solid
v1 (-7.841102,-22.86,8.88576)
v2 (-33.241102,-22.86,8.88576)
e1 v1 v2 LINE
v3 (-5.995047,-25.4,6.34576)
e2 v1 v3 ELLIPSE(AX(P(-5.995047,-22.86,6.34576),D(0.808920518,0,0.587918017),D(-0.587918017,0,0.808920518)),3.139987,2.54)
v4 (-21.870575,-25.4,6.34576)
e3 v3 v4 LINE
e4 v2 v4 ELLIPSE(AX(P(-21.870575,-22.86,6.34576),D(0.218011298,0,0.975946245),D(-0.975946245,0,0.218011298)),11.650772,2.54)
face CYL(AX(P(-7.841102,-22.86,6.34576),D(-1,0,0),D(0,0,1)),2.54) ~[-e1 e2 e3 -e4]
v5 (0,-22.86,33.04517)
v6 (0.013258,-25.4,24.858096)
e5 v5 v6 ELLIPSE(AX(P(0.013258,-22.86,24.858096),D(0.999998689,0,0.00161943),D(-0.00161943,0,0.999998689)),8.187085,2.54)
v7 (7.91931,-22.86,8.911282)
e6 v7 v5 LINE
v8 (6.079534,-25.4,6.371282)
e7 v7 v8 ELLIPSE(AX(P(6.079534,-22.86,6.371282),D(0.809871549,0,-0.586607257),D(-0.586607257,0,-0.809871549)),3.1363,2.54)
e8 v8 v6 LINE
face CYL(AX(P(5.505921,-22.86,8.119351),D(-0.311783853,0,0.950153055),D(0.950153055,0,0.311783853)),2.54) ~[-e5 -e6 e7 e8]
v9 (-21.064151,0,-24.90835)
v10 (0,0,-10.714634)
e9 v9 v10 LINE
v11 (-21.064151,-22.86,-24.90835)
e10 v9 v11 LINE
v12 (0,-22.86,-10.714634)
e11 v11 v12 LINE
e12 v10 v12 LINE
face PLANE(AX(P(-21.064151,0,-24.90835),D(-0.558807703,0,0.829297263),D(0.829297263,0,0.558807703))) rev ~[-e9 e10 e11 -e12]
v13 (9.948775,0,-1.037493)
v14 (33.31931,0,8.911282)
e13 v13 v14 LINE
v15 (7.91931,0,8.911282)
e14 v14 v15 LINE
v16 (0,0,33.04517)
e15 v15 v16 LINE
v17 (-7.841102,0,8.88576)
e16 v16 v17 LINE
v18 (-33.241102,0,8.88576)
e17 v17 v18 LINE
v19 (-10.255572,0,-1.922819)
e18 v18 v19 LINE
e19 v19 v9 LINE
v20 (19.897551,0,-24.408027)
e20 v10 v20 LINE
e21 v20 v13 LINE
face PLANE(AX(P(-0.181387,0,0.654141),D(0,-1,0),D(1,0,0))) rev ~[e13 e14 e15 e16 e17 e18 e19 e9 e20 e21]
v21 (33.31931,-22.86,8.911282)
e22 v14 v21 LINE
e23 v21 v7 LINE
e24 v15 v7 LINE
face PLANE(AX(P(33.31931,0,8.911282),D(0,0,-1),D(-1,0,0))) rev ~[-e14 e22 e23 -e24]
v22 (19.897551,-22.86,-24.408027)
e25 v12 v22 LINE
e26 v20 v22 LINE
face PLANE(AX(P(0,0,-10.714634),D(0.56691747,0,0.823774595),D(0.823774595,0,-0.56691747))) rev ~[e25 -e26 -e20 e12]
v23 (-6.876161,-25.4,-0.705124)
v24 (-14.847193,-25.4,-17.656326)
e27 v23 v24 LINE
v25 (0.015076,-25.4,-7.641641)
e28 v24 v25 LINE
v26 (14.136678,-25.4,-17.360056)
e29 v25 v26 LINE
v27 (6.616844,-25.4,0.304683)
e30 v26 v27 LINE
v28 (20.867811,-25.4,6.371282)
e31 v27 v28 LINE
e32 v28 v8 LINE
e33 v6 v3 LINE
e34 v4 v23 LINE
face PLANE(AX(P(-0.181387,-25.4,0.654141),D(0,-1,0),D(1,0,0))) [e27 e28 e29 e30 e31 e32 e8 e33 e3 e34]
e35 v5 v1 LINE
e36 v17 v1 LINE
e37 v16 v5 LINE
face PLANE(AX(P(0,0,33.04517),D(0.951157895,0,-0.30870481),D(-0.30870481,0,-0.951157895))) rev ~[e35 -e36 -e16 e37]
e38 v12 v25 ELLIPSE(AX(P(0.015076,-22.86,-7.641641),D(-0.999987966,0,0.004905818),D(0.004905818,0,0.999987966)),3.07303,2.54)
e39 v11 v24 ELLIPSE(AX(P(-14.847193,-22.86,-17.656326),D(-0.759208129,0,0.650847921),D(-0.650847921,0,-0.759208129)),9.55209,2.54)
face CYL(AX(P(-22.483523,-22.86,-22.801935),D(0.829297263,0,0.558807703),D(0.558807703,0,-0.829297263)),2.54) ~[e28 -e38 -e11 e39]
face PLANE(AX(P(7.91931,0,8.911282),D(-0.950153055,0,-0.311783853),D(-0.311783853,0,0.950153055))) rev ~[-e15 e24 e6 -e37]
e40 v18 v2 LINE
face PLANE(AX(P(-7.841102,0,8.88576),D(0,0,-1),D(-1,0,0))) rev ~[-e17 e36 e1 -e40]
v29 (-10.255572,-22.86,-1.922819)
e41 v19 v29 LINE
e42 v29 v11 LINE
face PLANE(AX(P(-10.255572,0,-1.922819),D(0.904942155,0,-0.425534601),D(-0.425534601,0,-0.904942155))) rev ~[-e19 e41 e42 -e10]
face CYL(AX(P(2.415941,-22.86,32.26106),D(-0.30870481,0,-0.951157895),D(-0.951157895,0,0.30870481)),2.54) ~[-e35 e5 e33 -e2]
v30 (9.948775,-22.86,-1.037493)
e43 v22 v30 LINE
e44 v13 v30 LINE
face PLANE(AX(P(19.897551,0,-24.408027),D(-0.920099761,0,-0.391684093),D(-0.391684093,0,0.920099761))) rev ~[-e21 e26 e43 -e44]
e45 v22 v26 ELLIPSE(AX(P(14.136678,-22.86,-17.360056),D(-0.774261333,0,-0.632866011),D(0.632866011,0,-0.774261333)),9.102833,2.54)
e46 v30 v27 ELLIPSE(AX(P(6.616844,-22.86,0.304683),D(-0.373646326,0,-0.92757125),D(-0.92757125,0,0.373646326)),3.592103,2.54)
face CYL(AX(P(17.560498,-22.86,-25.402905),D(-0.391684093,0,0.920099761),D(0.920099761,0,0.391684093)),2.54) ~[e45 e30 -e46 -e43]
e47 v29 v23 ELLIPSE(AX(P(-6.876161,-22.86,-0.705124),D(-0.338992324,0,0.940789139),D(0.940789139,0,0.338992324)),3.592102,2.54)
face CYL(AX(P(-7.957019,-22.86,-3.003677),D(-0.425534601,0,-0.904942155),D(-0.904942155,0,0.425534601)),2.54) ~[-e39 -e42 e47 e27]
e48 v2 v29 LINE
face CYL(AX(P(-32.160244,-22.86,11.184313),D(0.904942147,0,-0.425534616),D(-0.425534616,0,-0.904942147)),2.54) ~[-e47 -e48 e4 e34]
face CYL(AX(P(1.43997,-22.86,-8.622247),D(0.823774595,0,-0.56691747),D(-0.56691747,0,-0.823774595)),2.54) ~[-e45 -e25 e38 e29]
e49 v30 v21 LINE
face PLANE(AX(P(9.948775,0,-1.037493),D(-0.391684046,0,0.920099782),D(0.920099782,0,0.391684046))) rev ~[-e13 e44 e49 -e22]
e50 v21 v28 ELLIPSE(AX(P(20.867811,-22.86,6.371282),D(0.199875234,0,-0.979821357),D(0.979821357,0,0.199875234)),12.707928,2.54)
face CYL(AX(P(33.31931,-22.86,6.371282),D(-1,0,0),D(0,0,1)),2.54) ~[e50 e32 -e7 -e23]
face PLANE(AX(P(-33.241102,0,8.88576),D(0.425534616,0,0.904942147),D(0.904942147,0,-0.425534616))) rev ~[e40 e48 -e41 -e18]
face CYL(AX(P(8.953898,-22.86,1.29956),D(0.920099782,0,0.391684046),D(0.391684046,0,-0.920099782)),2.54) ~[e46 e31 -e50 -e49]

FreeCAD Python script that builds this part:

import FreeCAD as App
import Part
import Sketcher
Q = App.Units.Quantity


def edges_at(feature, points):
    """Names of the edges that pass closest to the given points."""
    edges = feature.Shape.Edges
    near = lambda p: min(range(len(edges)), key=lambda i: edges[i].distToShape(Part.Vertex(*p))[0])
    return sorted({f"Edge{near(p) + 1}" for p in points})

doc = App.newDocument("Part")
params = doc.addObject("Spreadsheet::Sheet", "Params")
for row, (alias, value) in enumerate([
    ("sketch1_width", "1 in"),
    ("sketch1_length", "1 in"),
    ("pad1_length", "1 in"),
    ("fillet_radius", "0.1 in"),
], start=1):
    params.set(f"A{row}", alias)
    params.set(f"B{row}", "=" + value)
    params.setAlias(f"B{row}", alias)

body = doc.addObject("PartDesign::Body", "Body")

# Sketch on XZ plane
sketch1 = doc.addObject("Sketcher::SketchObject", "Sketch")
body.addObject(sketch1)
sketch1.AttachmentSupport = (doc.XZ_Plane, [""])
sketch1.MapMode = "FlatFace"
sketch1.addGeometry(Part.LineSegment(App.Vector(7.91931, 8.911282, 0), App.Vector(0, 33.04517, 0)), False)
sketch1.addGeometry(Part.LineSegment(App.Vector(0, 33.04517, 0), App.Vector(-7.841102, 8.88576, 0)), False)
sketch1.addGeometry(Part.LineSegment(App.Vector(-7.841102, 8.88576, 0), App.Vector(-33.241102, 8.88576, 0)), False)
sketch1.addGeometry(Part.LineSegment(App.Vector(-33.241102, 8.88576, 0), App.Vector(-10.255572, -1.922819, 0)), False)
sketch1.addGeometry(Part.LineSegment(App.Vector(-10.255572, -1.922819, 0), App.Vector(-21.064151, -24.90835, 0)), False)
sketch1.addGeometry(Part.LineSegment(App.Vector(-21.064151, -24.90835, 0), App.Vector(0, -10.714634, 0)), False)
sketch1.addGeometry(Part.LineSegment(App.Vector(0, -10.714634, 0), App.Vector(19.897551, -24.408027, 0)), False)
sketch1.addGeometry(Part.LineSegment(App.Vector(19.897551, -24.408027, 0), App.Vector(9.948775, -1.037493, 0)), False)
sketch1.addGeometry(Part.LineSegment(App.Vector(9.948775, -1.037493, 0), App.Vector(33.31931, 8.911282, 0)), False)
sketch1.addGeometry(Part.LineSegment(App.Vector(33.31931, 8.911282, 0), App.Vector(7.91931, 8.911282, 0)), False)
sketch1.addConstraint(Sketcher.Constraint("Coincident", 0, 2, 1, 1))
sketch1.addConstraint(Sketcher.Constraint("Coincident", 1, 2, 2, 1))
sketch1.addConstraint(Sketcher.Constraint("Coincident", 2, 2, 3, 1))
sketch1.addConstraint(Sketcher.Constraint("Coincident", 3, 2, 4, 1))
sketch1.addConstraint(Sketcher.Constraint("Coincident", 4, 2, 5, 1))
sketch1.addConstraint(Sketcher.Constraint("Coincident", 5, 2, 6, 1))
sketch1.addConstraint(Sketcher.Constraint("Coincident", 6, 2, 7, 1))
sketch1.addConstraint(Sketcher.Constraint("Coincident", 7, 2, 8, 1))
sketch1.addConstraint(Sketcher.Constraint("Coincident", 8, 2, 9, 1))
sketch1.addConstraint(Sketcher.Constraint("Coincident", 9, 2, 0, 1))
sketch1.addConstraint(Sketcher.Constraint("Horizontal", 2))
sketch1.addConstraint(Sketcher.Constraint("Horizontal", 9))
sketch1.addConstraint(Sketcher.Constraint("PointOnObject", 0, 2, -2))
sketch1.addConstraint(Sketcher.Constraint("PointOnObject", 5, 2, -2))
sketch1.addConstraint(Sketcher.Constraint("Perpendicular", 3, 4))
sketch1.addConstraint(Sketcher.Constraint("Perpendicular", 7, 8))
sketch1.addConstraint(Sketcher.Constraint("Equal", 2, 9))
sketch1.addConstraint(Sketcher.Constraint("Equal", 0, 1))
sketch1.addConstraint(Sketcher.Constraint("Equal", 1, 3))
sketch1.addConstraint(Sketcher.Constraint("Equal", 3, 4))
sketch1.addConstraint(Sketcher.Constraint("Equal", 4, 5))
sketch1.addConstraint(Sketcher.Constraint("Equal", 5, 7))
sketch1.addConstraint(Sketcher.Constraint("Equal", 7, 8))
sketch1.addConstraint(Sketcher.Constraint("DistanceX", 2, 2, 2, 1, Q("1 in")))
sketch1.addConstraint(Sketcher.Constraint("Distance", 0, Q("1 in")))
sketch1.addConstraint(Sketcher.Constraint("DistanceX", 7, 2, 8, 2, Q("0.9200998 in")))
sketch1.addConstraint(Sketcher.Constraint("DistanceX", 2, 2, -1, 1, 33.241102))
sketch1.addConstraint(Sketcher.Constraint("DistanceY", 3, 2, 9, 2, 10.834101))
sketch1.addConstraint(Sketcher.Constraint("Distance", 6, 24.154121))
sketch1.addConstraint(Sketcher.Constraint("DistanceY", -1, 1, 0, 2, 33.04517))
sketch1.setExpression("Constraints[23]", "Params.sketch1_width")
sketch1.setExpression("Constraints[24]", "Params.sketch1_length")
pad1 = doc.addObject("PartDesign::Pad", "Pad")
body.addObject(pad1)
pad1.Profile = sketch1
pad1.setExpression("Length", "Params.pad1_length")
doc.recompute()

fillet = doc.addObject("PartDesign::Fillet", "Fillet")
body.addObject(fillet)
fillet.Base = (pad1, edges_at(pad1, [
    (-20.541, -25.4, 8.886),
    (-21.748, -25.4, 3.481),
    (-15.66, -25.4, -13.416),
    (-10.532, -25.4, -17.811),
    (9.949, -25.4, -17.561),
    (14.923, -25.4, -12.723),
    (21.634, -25.4, 3.937),
    (20.619, -25.4, 8.911),
    (3.96, -25.4, 20.978),
    (-3.921, -25.4, 20.965),
]))
fillet.setExpression("Radius", "Params.fillet_radius")

doc.recompute()
